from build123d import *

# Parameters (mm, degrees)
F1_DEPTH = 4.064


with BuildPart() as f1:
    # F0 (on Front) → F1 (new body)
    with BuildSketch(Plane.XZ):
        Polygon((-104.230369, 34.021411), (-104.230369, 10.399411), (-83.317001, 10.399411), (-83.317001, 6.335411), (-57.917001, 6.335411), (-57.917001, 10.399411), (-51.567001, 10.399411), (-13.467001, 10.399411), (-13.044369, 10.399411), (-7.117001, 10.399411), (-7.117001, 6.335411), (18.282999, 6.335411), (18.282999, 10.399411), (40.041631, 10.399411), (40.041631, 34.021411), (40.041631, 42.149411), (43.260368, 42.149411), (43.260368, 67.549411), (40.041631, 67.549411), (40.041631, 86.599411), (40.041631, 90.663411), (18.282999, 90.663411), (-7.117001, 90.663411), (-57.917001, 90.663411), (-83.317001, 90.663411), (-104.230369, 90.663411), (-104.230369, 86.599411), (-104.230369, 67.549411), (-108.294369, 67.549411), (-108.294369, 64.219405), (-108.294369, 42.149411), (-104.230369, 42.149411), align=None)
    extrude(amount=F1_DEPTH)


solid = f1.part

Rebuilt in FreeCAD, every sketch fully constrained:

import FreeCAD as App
import Part
import Sketcher
from FreeCAD import Vector
Q = App.Units.Quantity

doc = App.newDocument("Part")
body = doc.addObject("PartDesign::Body", "Body")

sketch1 = doc.addObject("Sketcher::SketchObject", "Sketch")
body.addObject(sketch1)
sketch1.AttachmentSupport = (doc.XZ_Plane, [""])
sketch1.MapMode = "FlatFace"
sketch1.addGeometry(Part.LineSegment(Vector(-104.2, 10.4, 0), Vector(-83.3, 10.4, 0)), False)
sketch1.addGeometry(Part.LineSegment(Vector(-83.3, 10.4, 0), Vector(-83.3, 6.3, 0)), False)
sketch1.addGeometry(Part.LineSegment(Vector(-83.3, 6.3, 0), Vector(-57.9, 6.3, 0)), False)
sketch1.addGeometry(Part.LineSegment(Vector(-57.9, 6.3, 0), Vector(-57.9, 10.4, 0)), False)
sketch1.addGeometry(Part.LineSegment(Vector(-57.9, 10.4, 0), Vector(-7.1, 10.4, 0)), False)
sketch1.addGeometry(Part.LineSegment(Vector(-7.1, 10.4, 0), Vector(-7.1, 6.3, 0)), False)
sketch1.addGeometry(Part.LineSegment(Vector(-7.1, 6.3, 0), Vector(18.3, 6.3, 0)), False)
sketch1.addGeometry(Part.LineSegment(Vector(18.3, 6.3, 0), Vector(18.3, 10.4, 0)), False)
sketch1.addGeometry(Part.LineSegment(Vector(18.3, 10.4, 0), Vector(40, 10.4, 0)), False)
sketch1.addGeometry(Part.LineSegment(Vector(40, 10.4, 0), Vector(40, 42.1, 0)), False)
sketch1.addGeometry(Part.LineSegment(Vector(40, 42.1, 0), Vector(43.3, 42.1, 0)), False)
sketch1.addGeometry(Part.LineSegment(Vector(43.3, 42.1, 0), Vector(43.3, 67.5, 0)), False)
sketch1.addGeometry(Part.LineSegment(Vector(43.3, 67.5, 0), Vector(40, 67.5, 0)), False)
sketch1.addGeometry(Part.LineSegment(Vector(40, 67.5, 0), Vector(40, 90.7, 0)), False)
sketch1.addGeometry(Part.LineSegment(Vector(40, 90.7, 0), Vector(-104.2, 90.7, 0)), False)
sketch1.addGeometry(Part.LineSegment(Vector(-104.2, 90.7, 0), Vector(-104.2, 67.5, 0)), False)
sketch1.addGeometry(Part.LineSegment(Vector(-104.2, 67.5, 0), Vector(-108.3, 67.5, 0)), False)
sketch1.addGeometry(Part.LineSegment(Vector(-108.3, 67.5, 0), Vector(-108.3, 42.1, 0)), False)
sketch1.addGeometry(Part.LineSegment(Vector(-108.3, 42.1, 0), Vector(-104.2, 42.1, 0)), False)
sketch1.addGeometry(Part.LineSegment(Vector(-104.2, 42.1, 0), Vector(-104.2, 10.4, 0)), False)
sketch1.addConstraint(Sketcher.Constraint("Coincident", 0, 2, 1, 1))
sketch1.addConstraint(Sketcher.Constraint("Coincident", 1, 2, 2, 1))
sketch1.addConstraint(Sketcher.Constraint("Coincident", 2, 2, 3, 1))
sketch1.addConstraint(Sketcher.Constraint("Coincident", 3, 2, 4, 1))
sketch1.addConstraint(Sketcher.Constraint("Coincident", 4, 2, 5, 1))
sketch1.addConstraint(Sketcher.Constraint("Coincident", 5, 2, 6, 1))
sketch1.addConstraint(Sketcher.Constraint("Coincident", 6, 2, 7, 1))
sketch1.addConstraint(Sketcher.Constraint("Coincident", 7, 2, 8, 1))
sketch1.addConstraint(Sketcher.Constraint("Coincident", 8, 2, 9, 1))
sketch1.addConstraint(Sketcher.Constraint("Coincident", 9, 2, 10, 1))
sketch1.addConstraint(Sketcher.Constraint("Coincident", 10, 2, 11, 1))
sketch1.addConstraint(Sketcher.Constraint("Coincident", 11, 2, 12, 1))
sketch1.addConstraint(Sketcher.Constraint("Coincident", 12, 2, 13, 1))
sketch1.addConstraint(Sketcher.Constraint("Coincident", 13, 2, 14, 1))
sketch1.addConstraint(Sketcher.Constraint("Coincident", 14, 2, 15, 1))
sketch1.addConstraint(Sketcher.Constraint("Coincident", 15, 2, 16, 1))
sketch1.addConstraint(Sketcher.Constraint("Coincident", 16, 2, 17, 1))
sketch1.addConstraint(Sketcher.Constraint("Coincident", 17, 2, 18, 1))
sketch1.addConstraint(Sketcher.Constraint("Coincident", 18, 2, 19, 1))
sketch1.addConstraint(Sketcher.Constraint("Coincident", 19, 2, 0, 1))
sketch1.addConstraint(Sketcher.Constraint("Horizontal", 0))
sketch1.addConstraint(Sketcher.Constraint("Vertical", 1))
sketch1.addConstraint(Sketcher.Constraint("Horizontal", 2))
sketch1.addConstraint(Sketcher.Constraint("Vertical", 3))
sketch1.addConstraint(Sketcher.Constraint("Horizontal", 4))
sketch1.addConstraint(Sketcher.Constraint("Vertical", 5))
sketch1.addConstraint(Sketcher.Constraint("Horizontal", 6))
sketch1.addConstraint(Sketcher.Constraint("Vertical", 7))
sketch1.addConstraint(Sketcher.Constraint("Horizontal", 8))
sketch1.addConstraint(Sketcher.Constraint("Vertical", 9))
sketch1.addConstraint(Sketcher.Constraint("Horizontal", 10))
sketch1.addConstraint(Sketcher.Constraint("Vertical", 11))
sketch1.addConstraint(Sketcher.Constraint("Horizontal", 12))
sketch1.addConstraint(Sketcher.Constraint("Vertical", 13))
sketch1.addConstraint(Sketcher.Constraint("Horizontal", 14))
sketch1.addConstraint(Sketcher.Constraint("Vertical", 15))
sketch1.addConstraint(Sketcher.Constraint("Horizontal", 16))
sketch1.addConstraint(Sketcher.Constraint("Vertical", 17))
sketch1.addConstraint(Sketcher.Constraint("Horizontal", 18))
sketch1.addConstraint(Sketcher.Constraint("Vertical", 19))
sketch1.addConstraint(Sketcher.Constraint("Horizontal", 0, 2, 3, 2))
sketch1.addConstraint(Sketcher.Constraint("Horizontal", 2, 2, 5, 2))
sketch1.addConstraint(Sketcher.Constraint("Horizontal", 4, 2, 7, 2))
sketch1.addConstraint(Sketcher.Constraint("Horizontal", 12, 2, 15, 2))
sketch1.addConstraint(Sketcher.Constraint("Horizontal", 10, 2, 17, 2))
sketch1.addConstraint(Sketcher.Constraint("Vertical", 9, 2, 12, 2))
sketch1.addConstraint(Sketcher.Constraint("Vertical", 15, 2, 18, 2))
sketch1.addConstraint(Sketcher.Constraint("Equal", 2, 6))
sketch1.addConstraint(Sketcher.Constraint("Equal", 18, 1))
sketch1.addConstraint(Sketcher.Constraint("Equal", 6, 11))
sketch1.addConstraint(Sketcher.Constraint("DistanceX", 2, 1, 2, 2, Q("1 in")))
sketch1.addConstraint(Sketcher.Constraint("DistanceX", 4, 1, 4, 2, Q("2 in")))
sketch1.addConstraint(Sketcher.Constraint("DistanceX", 14, 2, 14, 1, Q("5.68 in")))
sketch1.addConstraint(Sketcher.Constraint("DistanceX", 16, 2, 16, 1, Q("0.16 in")))
sketch1.addConstraint(Sketcher.Constraint("DistanceY", 9, 1, 9, 2, Q("1.25 in")))
sketch1.addConstraint(Sketcher.Constraint("DistanceY", 13, 1, 13, 2, Q("0.91 in")))
sketch1.addConstraint(Sketcher.Constraint("DistanceX", 0, 2, -1, 1, 83.317001))
sketch1.addConstraint(Sketcher.Constraint("DistanceX", 0, 1, 0, 2, 20.913368))
sketch1.addConstraint(Sketcher.Constraint("DistanceX", 10, 1, 10, 2, 3.218737))
sketch1.addConstraint(Sketcher.Constraint("DistanceY", -1, 1, 0, 2, 10.399411))
pad1 = doc.addObject("PartDesign::Pad", "Pad")
body.addObject(pad1)
pad1.Profile = sketch1
pad1.Length = Q("0.16 in")

doc.recompute()
